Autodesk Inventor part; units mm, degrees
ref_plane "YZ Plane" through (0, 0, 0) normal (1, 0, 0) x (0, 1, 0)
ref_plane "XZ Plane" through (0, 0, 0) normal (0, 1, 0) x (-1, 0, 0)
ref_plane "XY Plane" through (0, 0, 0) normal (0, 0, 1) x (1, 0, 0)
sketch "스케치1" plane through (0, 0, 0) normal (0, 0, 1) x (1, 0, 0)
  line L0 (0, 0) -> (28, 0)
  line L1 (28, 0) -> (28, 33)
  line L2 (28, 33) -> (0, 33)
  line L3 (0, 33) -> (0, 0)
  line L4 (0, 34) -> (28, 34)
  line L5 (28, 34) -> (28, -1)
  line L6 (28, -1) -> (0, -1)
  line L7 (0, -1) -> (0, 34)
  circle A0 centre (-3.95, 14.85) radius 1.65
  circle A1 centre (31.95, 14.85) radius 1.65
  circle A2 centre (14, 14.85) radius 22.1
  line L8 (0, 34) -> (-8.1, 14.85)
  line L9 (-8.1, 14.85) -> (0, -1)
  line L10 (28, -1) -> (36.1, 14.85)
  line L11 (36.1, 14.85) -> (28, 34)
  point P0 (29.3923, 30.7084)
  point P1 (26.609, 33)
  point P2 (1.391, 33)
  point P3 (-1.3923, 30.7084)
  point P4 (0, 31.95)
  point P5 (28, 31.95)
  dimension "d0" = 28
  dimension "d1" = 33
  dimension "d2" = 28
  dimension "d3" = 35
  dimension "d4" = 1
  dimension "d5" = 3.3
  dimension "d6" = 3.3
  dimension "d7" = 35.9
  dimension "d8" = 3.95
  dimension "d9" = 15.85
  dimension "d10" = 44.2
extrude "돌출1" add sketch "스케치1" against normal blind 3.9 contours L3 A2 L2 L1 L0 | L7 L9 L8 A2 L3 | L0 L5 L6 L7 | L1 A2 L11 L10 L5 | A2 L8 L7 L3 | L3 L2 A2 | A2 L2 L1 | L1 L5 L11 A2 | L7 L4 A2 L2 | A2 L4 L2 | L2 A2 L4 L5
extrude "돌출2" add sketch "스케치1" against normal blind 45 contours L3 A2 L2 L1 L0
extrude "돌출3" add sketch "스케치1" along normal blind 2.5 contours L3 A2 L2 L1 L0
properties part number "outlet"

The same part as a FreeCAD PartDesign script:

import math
import FreeCAD as App
import Part
import Sketcher

V = App.Vector
Q = App.Units.Quantity


def add_polygon(sketch, points):
    """Adds a closed chain of lines whose ends are joined by coincident constraints."""
    first, n = sketch.GeometryCount, len(points)
    for a, b in zip(points, points[1:] + points[:1]):
        sketch.addGeometry(Part.LineSegment(App.Vector(*a, 0), App.Vector(*b, 0)), False)
    for i in range(n):
        sketch.addConstraint(Sketcher.Constraint("Coincident", first + i, 2, first + (i + 1) % n, 1))

doc = App.newDocument("Part")
body = doc.addObject("PartDesign::Body", "Body")

# Sketch on XY plane
sketch1 = body.newObject("Sketcher::SketchObject", "Sketch")
sketch1.AttachmentSupport = (doc.getObject("XY_Plane"), [""])
sketch1.MapMode = "FlatFace"
add_polygon(sketch1, [(-8.1, 14.85), (0, -1), (28, -1), (36.1, 14.85), (28, 34), (0, 34)])  # lines 0-5
sketch1.addGeometry(Part.Circle(V(-3.95, 14.85, 0), V(0, 0, 1), 1.65), False)  # 6
sketch1.addGeometry(Part.Circle(V(31.95, 14.85, 0), V(0, 0, 1), 1.65), False)  # 7
sketch1.addConstraint([
    Sketcher.Constraint("Horizontal", 1),
    Sketcher.Constraint("Horizontal", 4),
    Sketcher.Constraint("Equal", 6, 7),
    Sketcher.Constraint("PointOnObject", 0, 2, -2),
    Sketcher.Constraint("PointOnObject", 4, 2, -2),
    Sketcher.Constraint("Horizontal", 6, 3, 7, 3),
    Sketcher.Constraint("Horizontal", 7, 3, 2, 2),
    Sketcher.Constraint("Horizontal", 2, 2, 5, 2),
    Sketcher.Constraint("Vertical", 1, 2, 3, 2),
    Sketcher.Constraint("Equal", 0, 2),
    Sketcher.Constraint("Diameter", 6, Q("3.3 mm")),
    Sketcher.Constraint("DistanceX", 1, 1, 1, 2, Q("28 mm")),
    Sketcher.Constraint("DistanceY", 0, 2, -1, 1, Q("1 mm")),
    Sketcher.Constraint("DistanceY", 1, 2, 3, 2, Q("35 mm")),
    Sketcher.Constraint("DistanceX", 6, 3, 7, 3, Q("35.9 mm")),
    Sketcher.Constraint("DistanceX", 6, 3, -1, 1, Q("3.95 mm")),
    Sketcher.Constraint("DistanceY", 0, 2, 6, 3, Q("15.85 mm")),
    Sketcher.Constraint("DistanceX", -1, 1, 2, 2, Q("36.1 mm")),
])
pad1 = body.newObject("PartDesign::Pad", "Pad")
pad1.Profile = sketch1
pad1.Length = 3.9
pad1.Reversed = True

# Sketch on XY plane
sketch2 = body.newObject("Sketcher::SketchObject", "Sketch001")
sketch2.AttachmentSupport = (doc.getObject("XY_Plane"), [""])
sketch2.MapMode = "FlatFace"
sketch2.addGeometry([
    Part.LineSegment(V(0, 31.95, 0), V(0, 0, 0)),  # 0
    Part.LineSegment(V(0, 0, 0), V(28, 0, 0)),  # 1
    Part.LineSegment(V(28, 0, 0), V(28, 31.95, 0)),  # 2
    Part.ArcOfCircle(Part.Circle(V(14, 14.85, 0), V(0, 0, 1), 22.1), math.radians(50.692352), math.radians(55.211824)),  # 3
    Part.LineSegment(V(26.609025, 33, 0), V(1.390975, 33, 0)),  # 4
    Part.ArcOfCircle(Part.Circle(V(14, 14.85, 0), V(0, 0, 1), 22.1), math.radians(124.788176), math.radians(129.307648)),  # 5
], False)
sketch2.addConstraint([
    Sketcher.Constraint("Coincident", 0, 2, 1, 1),
    Sketcher.Constraint("Coincident", 1, 2, 2, 1),
    Sketcher.Constraint("Coincident", 2, 2, 3, 1),
    Sketcher.Constraint("Coincident", 3, 2, 4, 1),
    Sketcher.Constraint("Coincident", 4, 2, 5, 1),
    Sketcher.Constraint("Coincident", 5, 2, 0, 1),
    Sketcher.Constraint("Vertical", 0),
    Sketcher.Constraint("Horizontal", 1),
    Sketcher.Constraint("Vertical", 2),
    Sketcher.Constraint("Horizontal", 4),
    Sketcher.Constraint("Coincident", 0, 2, -1, 1),
    Sketcher.Constraint("Coincident", 5, 3, 3, 3),
    Sketcher.Constraint("Equal", 3, 5),
    Sketcher.Constraint("Horizontal", 2, 2, 5, 2),
    Sketcher.Constraint("Radius", 3, Q("22.1 mm")),
    Sketcher.Constraint("DistanceX", 1, 1, 1, 2, Q("28 mm")),
    Sketcher.Constraint("DistanceY", -1, 1, 3, 2, Q("33 mm")),
    Sketcher.Constraint("DistanceY", 0, 2, 0, 1, Q("31.95 mm")),
])
pad2 = body.newObject("PartDesign::Pad", "Pad001")
pad2.Profile = sketch2
pad2.Length = 45
pad2.Reversed = True

# Sketch on XY plane
sketch3 = body.newObject("Sketcher::SketchObject", "Sketch002")
sketch3.AttachmentSupport = (doc.getObject("XY_Plane"), [""])
sketch3.MapMode = "FlatFace"
sketch3.addGeometry([
    Part.LineSegment(V(0, 31.95, 0), V(0, 0, 0)),  # 0
    Part.LineSegment(V(0, 0, 0), V(28, 0, 0)),  # 1
    Part.LineSegment(V(28, 0, 0), V(28, 31.95, 0)),  # 2
    Part.ArcOfCircle(Part.Circle(V(14, 14.85, 0), V(0, 0, 1), 22.1), math.radians(50.692352), math.radians(55.211824)),  # 3
    Part.LineSegment(V(26.609025, 33, 0), V(1.390975, 33, 0)),  # 4
    Part.ArcOfCircle(Part.Circle(V(14, 14.85, 0), V(0, 0, 1), 22.1), math.radians(124.788176), math.radians(129.307648)),  # 5
], False)
sketch3.addConstraint([
    Sketcher.Constraint("Coincident", 0, 2, 1, 1),
    Sketcher.Constraint("Coincident", 1, 2, 2, 1),
    Sketcher.Constraint("Coincident", 2, 2, 3, 1),
    Sketcher.Constraint("Coincident", 3, 2, 4, 1),
    Sketcher.Constraint("Coincident", 4, 2, 5, 1),
    Sketcher.Constraint("Coincident", 5, 2, 0, 1),
    Sketcher.Constraint("Vertical", 0),
    Sketcher.Constraint("Horizontal", 1),
    Sketcher.Constraint("Vertical", 2),
    Sketcher.Constraint("Horizontal", 4),
    Sketcher.Constraint("Coincident", 0, 2, -1, 1),
    Sketcher.Constraint("Coincident", 5, 3, 3, 3),
    Sketcher.Constraint("Equal", 3, 5),
    Sketcher.Constraint("Horizontal", 2, 2, 5, 2),
    Sketcher.Constraint("Radius", 3, Q("22.1 mm")),
    Sketcher.Constraint("DistanceX", 1, 1, 1, 2, Q("28 mm")),
    Sketcher.Constraint("DistanceY", -1, 1, 3, 2, Q("33 mm")),
    Sketcher.Constraint("DistanceY", 0, 2, 0, 1, Q("31.95 mm")),
])
pad3 = body.newObject("PartDesign::Pad", "Pad002")
pad3.Profile = sketch3
pad3.Length = 2.5

doc.recompute()
